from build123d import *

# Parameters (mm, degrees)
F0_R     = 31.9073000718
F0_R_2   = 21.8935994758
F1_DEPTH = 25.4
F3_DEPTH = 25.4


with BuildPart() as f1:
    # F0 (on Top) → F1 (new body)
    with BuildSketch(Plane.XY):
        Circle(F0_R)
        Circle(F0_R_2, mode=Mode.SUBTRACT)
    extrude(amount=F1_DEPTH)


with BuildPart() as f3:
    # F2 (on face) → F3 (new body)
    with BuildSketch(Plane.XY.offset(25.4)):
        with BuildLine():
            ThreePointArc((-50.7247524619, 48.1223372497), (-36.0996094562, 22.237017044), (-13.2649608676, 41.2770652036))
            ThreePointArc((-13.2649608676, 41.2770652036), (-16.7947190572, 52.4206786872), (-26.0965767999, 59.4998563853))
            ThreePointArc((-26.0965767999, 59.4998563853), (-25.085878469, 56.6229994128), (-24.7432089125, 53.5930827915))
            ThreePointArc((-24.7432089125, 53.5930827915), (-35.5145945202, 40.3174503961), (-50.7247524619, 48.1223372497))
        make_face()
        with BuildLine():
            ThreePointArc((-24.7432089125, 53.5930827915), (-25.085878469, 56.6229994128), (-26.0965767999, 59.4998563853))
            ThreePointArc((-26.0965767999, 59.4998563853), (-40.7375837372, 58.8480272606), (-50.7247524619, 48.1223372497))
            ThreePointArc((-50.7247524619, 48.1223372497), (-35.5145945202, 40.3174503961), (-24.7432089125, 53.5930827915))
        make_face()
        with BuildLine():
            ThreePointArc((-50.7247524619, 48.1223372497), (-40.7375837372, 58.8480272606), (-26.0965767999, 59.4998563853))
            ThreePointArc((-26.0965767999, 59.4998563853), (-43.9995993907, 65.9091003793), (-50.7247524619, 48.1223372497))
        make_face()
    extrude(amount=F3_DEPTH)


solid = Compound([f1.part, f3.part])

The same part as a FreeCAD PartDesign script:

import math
import FreeCAD as App
import Part
import Sketcher
Q = App.Units.Quantity

doc = App.newDocument("Part")
body = doc.addObject("PartDesign::Body", "Body")

sketch1 = body.newObject("Sketcher::SketchObject", "Sketch")
sketch1.AttachmentSupport = (doc.getObject("XY_Plane"), [""])
sketch1.MapMode = "FlatFace"
sketch1.addGeometry([
    Part.Circle(App.Vector(0, 0, 0), App.Vector(0, 0, 1), 32),
    Part.Circle(App.Vector(0, 0, 0), App.Vector(0, 0, 1), 22),
], False)
sketch1.addConstraint([
    Sketcher.Constraint("Coincident", 0, 3, -1, 1),
    Sketcher.Constraint("Coincident", 1, 3, -1, 1),
    Sketcher.Constraint("Diameter", 0, Q("63.8146 mm")),
    Sketcher.Constraint("Diameter", 1, Q("43.787199 mm")),
])
pad1 = body.newObject("PartDesign::Pad", "Pad")
pad1.Profile = sketch1
pad1.Length = Q("1 in")
body2 = doc.addObject("PartDesign::Body", "Body001")

sketch2 = body2.newObject("Sketcher::SketchObject", "Sketch001")
sketch2.AttachmentSupport = (doc.getObject("XY_Plane001"), [""])
sketch2.MapMode = "FlatFace"
sketch2.AttachmentOffset = App.Placement(App.Vector(0, 0, 1 * 25.4), App.Rotation())
sketch2.addGeometry([
    Part.ArcOfCircle(Part.Circle(App.Vector(-33, 41, 0), App.Vector(0, 0, 1), 19), math.radians(159), math.radians(360)),
    Part.ArcOfCircle(Part.Circle(App.Vector(-33, 41, 0), App.Vector(0, 0, 1), 19), math.radians(0), math.radians(70)),
    Part.ArcOfCircle(Part.Circle(App.Vector(-38, 54, 0), App.Vector(0, 0, 1), 14), math.radians(26), math.radians(204)),
], False)
sketch2.addConstraint([
    Sketcher.Constraint("Tangent", 0, 2, 1, 1),
    Sketcher.Constraint("Coincident", 1, 2, 2, 1),
    Sketcher.Constraint("Coincident", 2, 2, 0, 1),
    Sketcher.Constraint("Equal", 0, 1),
    Sketcher.Constraint("Horizontal", 1, 3, 0, 2),
    Sketcher.Constraint("Radius", 2, Q("13.566739 mm")),
    Sketcher.Constraint("Radius", 0, Q("19.355336 mm")),
    Sketcher.Constraint("DistanceX", 2, 3, -1, 1, Q("38.309948 mm")),
    Sketcher.Constraint("DistanceX", 0, 2, -1, 1, Q("13.264961 mm")),
    Sketcher.Constraint("DistanceX", 2, 3, 1, 2, Q("12.213372 mm")),
    Sketcher.Constraint("DistanceY", -1, 1, 0, 3, Q("41.277065 mm")),
])
pad2 = body2.newObject("PartDesign::Pad", "Pad001")
pad2.Profile = sketch2
pad2.Length = Q("1 in")

doc.recompute()
